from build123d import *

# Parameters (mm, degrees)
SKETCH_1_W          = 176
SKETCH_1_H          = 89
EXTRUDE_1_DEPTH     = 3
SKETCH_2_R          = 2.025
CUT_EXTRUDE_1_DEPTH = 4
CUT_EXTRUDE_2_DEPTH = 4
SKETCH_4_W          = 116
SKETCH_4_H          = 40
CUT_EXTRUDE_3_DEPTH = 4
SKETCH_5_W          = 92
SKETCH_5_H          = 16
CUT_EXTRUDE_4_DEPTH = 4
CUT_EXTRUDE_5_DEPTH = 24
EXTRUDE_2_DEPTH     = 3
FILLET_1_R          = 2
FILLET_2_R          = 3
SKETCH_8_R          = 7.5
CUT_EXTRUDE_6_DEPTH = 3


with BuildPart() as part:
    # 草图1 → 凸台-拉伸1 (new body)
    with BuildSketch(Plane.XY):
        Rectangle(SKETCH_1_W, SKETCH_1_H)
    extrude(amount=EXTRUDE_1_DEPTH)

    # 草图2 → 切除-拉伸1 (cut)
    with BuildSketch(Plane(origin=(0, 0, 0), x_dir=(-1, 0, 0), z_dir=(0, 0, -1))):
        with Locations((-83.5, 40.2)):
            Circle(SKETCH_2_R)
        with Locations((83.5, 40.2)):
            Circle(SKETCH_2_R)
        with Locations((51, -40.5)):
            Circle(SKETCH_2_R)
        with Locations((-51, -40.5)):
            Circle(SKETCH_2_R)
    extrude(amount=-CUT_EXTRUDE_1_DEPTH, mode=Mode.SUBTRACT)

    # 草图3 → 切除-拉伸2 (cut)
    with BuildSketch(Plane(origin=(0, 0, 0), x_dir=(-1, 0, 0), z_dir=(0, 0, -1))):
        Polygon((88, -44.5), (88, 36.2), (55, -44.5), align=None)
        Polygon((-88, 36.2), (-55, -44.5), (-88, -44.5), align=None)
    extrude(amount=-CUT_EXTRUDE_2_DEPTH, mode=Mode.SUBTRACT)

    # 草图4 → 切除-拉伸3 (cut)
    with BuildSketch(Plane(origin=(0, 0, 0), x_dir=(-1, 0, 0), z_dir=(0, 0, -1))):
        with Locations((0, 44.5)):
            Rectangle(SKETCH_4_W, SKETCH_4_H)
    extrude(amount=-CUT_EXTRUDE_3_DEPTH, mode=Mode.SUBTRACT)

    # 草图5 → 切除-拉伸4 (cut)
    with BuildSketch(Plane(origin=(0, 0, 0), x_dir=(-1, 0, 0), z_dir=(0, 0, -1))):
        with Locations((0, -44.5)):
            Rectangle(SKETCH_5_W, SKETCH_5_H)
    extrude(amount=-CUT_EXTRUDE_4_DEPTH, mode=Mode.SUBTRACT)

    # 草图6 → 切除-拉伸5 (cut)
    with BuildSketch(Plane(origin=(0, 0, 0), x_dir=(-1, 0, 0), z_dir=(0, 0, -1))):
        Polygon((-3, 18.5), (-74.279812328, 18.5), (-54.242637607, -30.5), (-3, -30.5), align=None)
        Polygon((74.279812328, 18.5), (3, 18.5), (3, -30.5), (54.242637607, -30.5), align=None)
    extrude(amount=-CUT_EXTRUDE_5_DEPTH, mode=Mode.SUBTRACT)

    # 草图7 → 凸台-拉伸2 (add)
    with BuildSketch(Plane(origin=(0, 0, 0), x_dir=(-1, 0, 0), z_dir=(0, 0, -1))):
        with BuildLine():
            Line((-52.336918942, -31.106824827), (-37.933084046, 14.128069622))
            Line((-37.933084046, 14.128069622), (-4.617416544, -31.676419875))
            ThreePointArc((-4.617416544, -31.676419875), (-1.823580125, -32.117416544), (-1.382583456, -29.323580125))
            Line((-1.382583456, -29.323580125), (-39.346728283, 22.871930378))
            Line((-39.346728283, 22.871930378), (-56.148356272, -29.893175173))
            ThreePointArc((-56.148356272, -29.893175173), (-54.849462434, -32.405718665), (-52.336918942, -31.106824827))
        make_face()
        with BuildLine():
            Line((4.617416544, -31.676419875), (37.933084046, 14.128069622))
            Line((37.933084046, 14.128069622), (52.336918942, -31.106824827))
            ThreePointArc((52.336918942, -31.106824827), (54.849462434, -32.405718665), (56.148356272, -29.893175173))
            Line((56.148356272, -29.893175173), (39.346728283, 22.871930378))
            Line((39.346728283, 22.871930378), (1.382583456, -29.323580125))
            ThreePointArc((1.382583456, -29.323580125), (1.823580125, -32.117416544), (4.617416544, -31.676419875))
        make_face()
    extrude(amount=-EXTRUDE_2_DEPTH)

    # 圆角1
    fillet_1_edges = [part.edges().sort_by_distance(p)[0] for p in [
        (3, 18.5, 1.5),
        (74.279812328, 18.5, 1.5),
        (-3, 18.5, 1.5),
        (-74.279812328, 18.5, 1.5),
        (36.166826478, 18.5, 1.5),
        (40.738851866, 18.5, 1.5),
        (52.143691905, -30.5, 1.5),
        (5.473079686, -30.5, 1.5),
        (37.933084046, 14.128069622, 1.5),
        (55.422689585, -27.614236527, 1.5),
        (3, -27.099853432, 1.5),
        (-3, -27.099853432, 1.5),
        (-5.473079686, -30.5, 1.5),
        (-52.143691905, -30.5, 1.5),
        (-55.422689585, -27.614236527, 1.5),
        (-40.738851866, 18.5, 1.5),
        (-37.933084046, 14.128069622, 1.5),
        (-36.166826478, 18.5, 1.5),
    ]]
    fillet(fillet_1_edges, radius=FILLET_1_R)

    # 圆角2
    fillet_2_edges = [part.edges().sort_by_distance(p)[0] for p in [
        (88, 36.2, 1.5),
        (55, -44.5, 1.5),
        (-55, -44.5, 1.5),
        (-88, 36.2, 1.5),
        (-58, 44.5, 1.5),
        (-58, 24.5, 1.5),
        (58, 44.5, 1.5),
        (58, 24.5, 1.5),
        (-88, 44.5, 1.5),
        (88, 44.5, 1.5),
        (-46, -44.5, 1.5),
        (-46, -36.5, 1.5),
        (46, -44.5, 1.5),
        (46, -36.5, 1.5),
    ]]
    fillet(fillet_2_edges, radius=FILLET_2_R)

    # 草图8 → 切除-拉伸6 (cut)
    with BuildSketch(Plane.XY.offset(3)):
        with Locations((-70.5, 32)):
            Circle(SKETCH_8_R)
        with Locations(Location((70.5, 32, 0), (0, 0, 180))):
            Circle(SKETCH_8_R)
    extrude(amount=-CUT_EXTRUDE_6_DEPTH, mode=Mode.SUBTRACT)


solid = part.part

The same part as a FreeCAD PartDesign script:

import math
import FreeCAD as App
import Part
import Sketcher

V = App.Vector


def edges_at(feature, points):
    """Names of the edges that pass closest to the given points."""
    edges = feature.Shape.Edges
    near = lambda p: min(range(len(edges)), key=lambda i: edges[i].distToShape(Part.Vertex(*p))[0])
    return sorted({f"Edge{near(p) + 1}" for p in points})


def add_polygon(sketch, points):
    """Adds a closed chain of lines whose ends are joined by coincident constraints."""
    first, n = sketch.GeometryCount, len(points)
    for a, b in zip(points, points[1:] + points[:1]):
        sketch.addGeometry(Part.LineSegment(App.Vector(*a, 0), App.Vector(*b, 0)), False)
    for i in range(n):
        sketch.addConstraint(Sketcher.Constraint("Coincident", first + i, 2, first + (i + 1) % n, 1))

doc = App.newDocument("Part")
params = doc.addObject("Spreadsheet::Sheet", "Params")
for row, (alias, value) in enumerate([
    ("sketch1_width", "176 mm"),
    ("sketch1_height", "89 mm"),
    ("pad1_length", "3 mm"),
    ("sketch2_diameter", "4.05 mm"),
    ("pocket1_length", "4 mm"),
    ("sketch3_width", "33 mm"),
    ("sketch3_height", "80.7 mm"),
    ("pocket2_length", "4 mm"),
    ("sketch4_width", "116 mm"),
    ("sketch4_height", "40 mm"),
    ("pocket3_length", "4 mm"),
    ("sketch5_width", "92 mm"),
    ("sketch5_height", "16 mm"),
    ("pocket4_length", "4 mm"),
    ("sketch6_height", "49 mm"),
    ("pocket5_length", "24 mm"),
    ("sketch7_radius", "2 mm"),
    ("pad2_length", "3 mm"),
    ("fillet_radius", "2 mm"),
    ("fillet2_radius", "3 mm"),
    ("sketch8_diameter", "15 mm"),
    ("pocket6_length", "3 mm"),
], start=1):
    params.set(f"A{row}", alias)
    params.set(f"B{row}", "=" + value)
    params.setAlias(f"B{row}", alias)

body = doc.addObject("PartDesign::Body", "Body")

# Sketch on XY plane
sketch1 = doc.addObject("Sketcher::SketchObject", "Sketch")
body.addObject(sketch1)
sketch1.AttachmentSupport = (doc.XY_Plane, [""])
sketch1.MapMode = "FlatFace"
add_polygon(sketch1, [(-88, 44), (-88, -44), (88, -44), (88, 44)])  # lines 0-3
sketch1.addConstraint([
    Sketcher.Constraint("Vertical", 0),
    Sketcher.Constraint("Horizontal", 1),
    Sketcher.Constraint("Vertical", 2),
    Sketcher.Constraint("Horizontal", 3),
    Sketcher.Constraint("Symmetric", 0, 2, 2, 2, -1, 1),
    Sketcher.Constraint("DistanceX", 1, 1, 1, 2, 176.0),
    Sketcher.Constraint("DistanceY", 0, 2, 0, 1, 89.0),
])
sketch1.setExpression("Constraints[9]", "Params.sketch1_width")
sketch1.setExpression("Constraints[10]", "Params.sketch1_height")
pad1 = doc.addObject("PartDesign::Pad", "Pad")
body.addObject(pad1)
pad1.Profile = sketch1
pad1.setExpression("Length", "Params.pad1_length")

# Sketch on XY plane
sketch2 = doc.addObject("Sketcher::SketchObject", "Sketch001")
body.addObject(sketch2)
sketch2.AttachmentSupport = (doc.XY_Plane, [""])
sketch2.MapMode = "FlatFace"
sketch2.addGeometry([
    Part.Circle(V(83.5, 40.2, 0), V(0, 0, 1), 2),
    Part.Circle(V(-83.5, 40.2, 0), V(0, 0, 1), 2),
    Part.Circle(V(-51, -40.5, 0), V(0, 0, 1), 2),
    Part.Circle(V(51, -40.5, 0), V(0, 0, 1), 2),
], False)
sketch2.addConstraint([
    Sketcher.Constraint("Equal", 0, 1),
    Sketcher.Constraint("Equal", 1, 2),
    Sketcher.Constraint("Equal", 2, 3),
    Sketcher.Constraint("Symmetric", 0, 3, 1, 3, -2),
    Sketcher.Constraint("Symmetric", 2, 3, 3, 3, -2),
    Sketcher.Constraint("Diameter", 0, 4.05),
    Sketcher.Constraint("DistanceX", 2, 3, -1, 1, 51.0),
    Sketcher.Constraint("DistanceX", 1, 3, 0, 3, 167.0),
    Sketcher.Constraint("DistanceY", -1, 1, 0, 3, 40.2),
    Sketcher.Constraint("DistanceY", 2, 3, -1, 1, 40.5),
])
sketch2.setExpression("Constraints[5]", "Params.sketch2_diameter")
pocket1 = doc.addObject("PartDesign::Pocket", "Pocket")
body.addObject(pocket1)
pocket1.Profile = sketch2
pocket1.setExpression("Length", "Params.pocket1_length")
pocket1.Reversed = True

# Sketch on XY plane
sketch3 = doc.addObject("Sketcher::SketchObject", "Sketch002")
body.addObject(sketch3)
sketch3.AttachmentSupport = (doc.XY_Plane, [""])
sketch3.MapMode = "FlatFace"
add_polygon(sketch3, [(-88, -44), (-88, 36), (-55, -44)])  # lines 0-2
add_polygon(sketch3, [(55, -44), (88, 36), (88, -44)])  # lines 3-5
sketch3.addConstraint([
    Sketcher.Constraint("Vertical", 0),
    Sketcher.Constraint("Horizontal", 2),
    Sketcher.Constraint("Vertical", 4),
    Sketcher.Constraint("Horizontal", 5),
    Sketcher.Constraint("Symmetric", 0, 2, 3, 2, -2),
    Sketcher.Constraint("Symmetric", 1, 2, 5, 2, -2),
    Sketcher.Constraint("DistanceX", 2, 2, 2, 1, 33.0),
    Sketcher.Constraint("DistanceY", 0, 1, 0, 2, 80.7),
    Sketcher.Constraint("DistanceX", 0, 2, -1, 1, 88.0),
    Sketcher.Constraint("DistanceY", -1, 1, 0, 2, 36.2),
])
sketch3.setExpression("Constraints[12]", "Params.sketch3_width")
sketch3.setExpression("Constraints[13]", "Params.sketch3_height")
pocket2 = doc.addObject("PartDesign::Pocket", "Pocket001")
body.addObject(pocket2)
pocket2.Profile = sketch3
pocket2.setExpression("Length", "Params.pocket2_length")
pocket2.Reversed = True

# Sketch on XY plane
sketch4 = doc.addObject("Sketcher::SketchObject", "Sketch003")
body.addObject(sketch4)
sketch4.AttachmentSupport = (doc.XY_Plane, [""])
sketch4.MapMode = "FlatFace"
add_polygon(sketch4, [(58, 64), (58, 24), (-58, 24), (-58, 64)])  # lines 0-3
sketch4.addConstraint([
    Sketcher.Constraint("Vertical", 0),
    Sketcher.Constraint("Horizontal", 1),
    Sketcher.Constraint("Vertical", 2),
    Sketcher.Constraint("Horizontal", 3),
    Sketcher.Constraint("DistanceX", 1, 2, 1, 1, 116.0),
    Sketcher.Constraint("DistanceY", 0, 2, 0, 1, 40.0),
    Sketcher.Constraint("DistanceX", -1, 1, 0, 2, 58.0),
    Sketcher.Constraint("DistanceY", -1, 1, 0, 2, 24.5),
])
sketch4.setExpression("Constraints[8]", "Params.sketch4_width")
sketch4.setExpression("Constraints[9]", "Params.sketch4_height")
pocket3 = doc.addObject("PartDesign::Pocket", "Pocket002")
body.addObject(pocket3)
pocket3.Profile = sketch4
pocket3.setExpression("Length", "Params.pocket3_length")
pocket3.Reversed = True

# Sketch on XY plane
sketch5 = doc.addObject("Sketcher::SketchObject", "Sketch004")
body.addObject(sketch5)
sketch5.AttachmentSupport = (doc.XY_Plane, [""])
sketch5.MapMode = "FlatFace"
add_polygon(sketch5, [(46, -36), (46, -52), (-46, -52), (-46, -36)])  # lines 0-3
sketch5.addConstraint([
    Sketcher.Constraint("Vertical", 0),
    Sketcher.Constraint("Horizontal", 1),
    Sketcher.Constraint("Vertical", 2),
    Sketcher.Constraint("Horizontal", 3),
    Sketcher.Constraint("DistanceX", 1, 2, 1, 1, 92.0),
    Sketcher.Constraint("DistanceY", 0, 2, 0, 1, 16.0),
    Sketcher.Constraint("DistanceX", -1, 1, 0, 2, 46.0),
    Sketcher.Constraint("DistanceY", 0, 2, -1, 1, 52.5),
])
sketch5.setExpression("Constraints[8]", "Params.sketch5_width")
sketch5.setExpression("Constraints[9]", "Params.sketch5_height")
pocket4 = doc.addObject("PartDesign::Pocket", "Pocket003")
body.addObject(pocket4)
pocket4.Profile = sketch5
pocket4.setExpression("Length", "Params.pocket4_length")
pocket4.Reversed = True

# Sketch on XY plane
sketch6 = doc.addObject("Sketcher::SketchObject", "Sketch005")
body.addObject(sketch6)
sketch6.AttachmentSupport = (doc.XY_Plane, [""])
sketch6.MapMode = "FlatFace"
add_polygon(sketch6, [(3, 18), (74, 18), (54, -30), (3, -30)])  # lines 0-3
add_polygon(sketch6, [(-74, 18), (-3, 18), (-3, -30), (-54, -30)])  # lines 4-7
sketch6.addConstraint([
    Sketcher.Constraint("Horizontal", 0),
    Sketcher.Constraint("Horizontal", 2),
    Sketcher.Constraint("Vertical", 3),
    Sketcher.Constraint("Horizontal", 4),
    Sketcher.Constraint("Vertical", 5),
    Sketcher.Constraint("Horizontal", 6),
    Sketcher.Constraint("Symmetric", 3, 2, 4, 2, -2),
    Sketcher.Constraint("Symmetric", 1, 2, 6, 2, -2),
    Sketcher.Constraint("Equal", 0, 4),
    Sketcher.Constraint("DistanceY", 3, 1, 3, 2, 49.0),
    Sketcher.Constraint("DistanceX", -1, 1, 2, 2, 3.0),
    Sketcher.Constraint("DistanceY", -1, 1, 0, 2, 18.5),
    Sketcher.Constraint("DistanceX", 0, 1, 0, 2, 71.279812),
    Sketcher.Constraint("DistanceX", 2, 2, 2, 1, 51.242638),
])
sketch6.setExpression("Constraints[17]", "Params.sketch6_height")
pocket5 = doc.addObject("PartDesign::Pocket", "Pocket004")
body.addObject(pocket5)
pocket5.Profile = sketch6
pocket5.setExpression("Length", "Params.pocket5_length")
pocket5.Reversed = True

# Sketch on XY plane
sketch7 = doc.addObject("Sketcher::SketchObject", "Sketch006")
body.addObject(sketch7)
sketch7.AttachmentSupport = (doc.XY_Plane, [""])
sketch7.MapMode = "FlatFace"
sketch7.addGeometry([
    Part.LineSegment(V(52.3, -31.1, 0), V(37.9, 14.1, 0)),  # 0
    Part.LineSegment(V(37.9, 14.1, 0), V(4.6, -31.7, 0)),  # 1
    Part.ArcOfCircle(Part.Circle(V(3, -30.5, 0), V(0, 0, 1), 2), math.radians(144), math.radians(324)),  # 2
    Part.LineSegment(V(1.4, -29.3, 0), V(39.3, 22.9, 0)),  # 3
    Part.LineSegment(V(39.3, 22.9, 0), V(56.1, -29.9, 0)),  # 4
    Part.ArcOfCircle(Part.Circle(V(54.2, -30.5, 0), V(0, 0, 1), 2), math.radians(-162), math.radians(18)),  # 5
    Part.LineSegment(V(-4.6, -31.7, 0), V(-37.9, 14.1, 0)),  # 6
    Part.LineSegment(V(-37.9, 14.1, 0), V(-52.3, -31.1, 0)),  # 7
    Part.ArcOfCircle(Part.Circle(V(-54.2, -30.5, 0), V(0, 0, 1), 2), math.radians(162), math.radians(342)),  # 8
    Part.LineSegment(V(-56.1, -29.9, 0), V(-39.3, 22.9, 0)),  # 9
    Part.LineSegment(V(-39.3, 22.9, 0), V(-1.4, -29.3, 0)),  # 10
    Part.ArcOfCircle(Part.Circle(V(-3, -30.5, 0), V(0, 0, 1), 2), math.radians(-144), math.radians(36)),  # 11
], False)
sketch7.addConstraint([
    Sketcher.Constraint("Coincident", 0, 2, 1, 1),
    Sketcher.Constraint("Tangent", 1, 2, 2, 2),
    Sketcher.Constraint("Tangent", 2, 1, 3, 1),
    Sketcher.Constraint("Coincident", 3, 2, 4, 1),
    Sketcher.Constraint("Tangent", 4, 2, 5, 2),
    Sketcher.Constraint("Tangent", 5, 1, 0, 1),
    Sketcher.Constraint("Coincident", 6, 2, 7, 1),
    Sketcher.Constraint("Tangent", 7, 2, 8, 2),
    Sketcher.Constraint("Tangent", 8, 1, 9, 1),
    Sketcher.Constraint("Coincident", 9, 2, 10, 1),
    Sketcher.Constraint("Tangent", 10, 2, 11, 2),
    Sketcher.Constraint("Tangent", 11, 1, 6, 1),
    Sketcher.Constraint("Equal", 2, 5),
    Sketcher.Constraint("Equal", 5, 8),
    Sketcher.Constraint("Equal", 8, 11),
    Sketcher.Constraint("Symmetric", 5, 3, 8, 3, -2),
    Sketcher.Constraint("Symmetric", 2, 3, 11, 3, -2),
    Sketcher.Constraint("Symmetric", 0, 2, 6, 2, -2),
    Sketcher.Constraint("Symmetric", 3, 2, 9, 2, -2),
    Sketcher.Constraint("Parallel", 1, 3),
    Sketcher.Constraint("Parallel", 0, 4),
    Sketcher.Constraint("Horizontal", 2, 3, 5, 3),
    Sketcher.Constraint("Radius", 2, 2.0),
    Sketcher.Constraint("DistanceX", -1, 1, 2, 3, 3.0),
    Sketcher.Constraint("DistanceY", 2, 3, -1, 1, 30.5),
    Sketcher.Constraint("DistanceX", 6, 2, 1, 2, 42.550501),
    Sketcher.Constraint("Distance", 3, 64.541828),
    Sketcher.Constraint("DistanceY", -1, 1, 0, 2, 14.12807),
])
sketch7.setExpression("Constraints[22]", "Params.sketch7_radius")
pad2 = doc.addObject("PartDesign::Pad", "Pad001")
body.addObject(pad2)
pad2.Profile = sketch7
pad2.setExpression("Length", "Params.pad2_length")
doc.recompute()

fillet = doc.addObject("PartDesign::Fillet", "Fillet")
body.addObject(fillet)
fillet.Base = (pad2, edges_at(pad2, [
    (3, 18.5, 1.5),
    (74.28, 18.5, 1.5),
    (-3, 18.5, 1.5),
    (-74.28, 18.5, 1.5),
    (36.167, 18.5, 1.5),
    (40.739, 18.5, 1.5),
    (52.144, -30.5, 1.5),
    (5.473, -30.5, 1.5),
    (37.933, 14.128, 1.5),
    (55.423, -27.614, 1.5),
    (3, -27.1, 1.5),
    (-3, -27.1, 1.5),
    (-5.473, -30.5, 1.5),
    (-52.144, -30.5, 1.5),
    (-55.423, -27.614, 1.5),
    (-40.739, 18.5, 1.5),
    (-37.933, 14.128, 1.5),
    (-36.167, 18.5, 1.5),
]))
fillet.setExpression("Radius", "Params.fillet_radius")
doc.recompute()

fillet2 = doc.addObject("PartDesign::Fillet", "Fillet001")
body.addObject(fillet2)
fillet2.Base = (fillet, edges_at(fillet, [
    (88, 36.2, 1.5),
    (55, -44.5, 1.5),
    (-55, -44.5, 1.5),
    (-88, 36.2, 1.5),
    (-58, 44.5, 1.5),
    (-58, 24.5, 1.5),
    (58, 44.5, 1.5),
    (58, 24.5, 1.5),
    (-88, 44.5, 1.5),
    (88, 44.5, 1.5),
    (-46, -44.5, 1.5),
    (-46, -36.5, 1.5),
    (46, -44.5, 1.5),
    (46, -36.5, 1.5),
]))
fillet2.setExpression("Radius", "Params.fillet2_radius")

# Sketch on XY plane
sketch8 = doc.addObject("Sketcher::SketchObject", "Sketch007")
body.addObject(sketch8)
sketch8.AttachmentSupport = (doc.XY_Plane, [""])
sketch8.MapMode = "FlatFace"
sketch8.AttachmentOffset = App.Placement(V(0, 0, 3), App.Rotation())
sketch8.addGeometry([
    Part.Circle(V(-70, 32, 0), V(0, 0, 1), 8),
    Part.Circle(V(70, 32, 0), V(0, 0, 1), 8),
], False)
sketch8.addConstraint([
    Sketcher.Constraint("Equal", 0, 1),
    Sketcher.Constraint("Symmetric", 0, 3, 1, 3, -2),
    Sketcher.Constraint("Diameter", 0, 15.0),
    Sketcher.Constraint("DistanceY", -1, 1, 0, 3, 32.0),
    Sketcher.Constraint("DistanceX", 0, 3, 1, 3, 141.0),
])
sketch8.setExpression("Constraints[2]", "Params.sketch8_diameter")
pocket6 = doc.addObject("PartDesign::Pocket", "Pocket005")
body.addObject(pocket6)
pocket6.Profile = sketch8
pocket6.setExpression("Length", "Params.pocket6_length")

doc.recompute()
